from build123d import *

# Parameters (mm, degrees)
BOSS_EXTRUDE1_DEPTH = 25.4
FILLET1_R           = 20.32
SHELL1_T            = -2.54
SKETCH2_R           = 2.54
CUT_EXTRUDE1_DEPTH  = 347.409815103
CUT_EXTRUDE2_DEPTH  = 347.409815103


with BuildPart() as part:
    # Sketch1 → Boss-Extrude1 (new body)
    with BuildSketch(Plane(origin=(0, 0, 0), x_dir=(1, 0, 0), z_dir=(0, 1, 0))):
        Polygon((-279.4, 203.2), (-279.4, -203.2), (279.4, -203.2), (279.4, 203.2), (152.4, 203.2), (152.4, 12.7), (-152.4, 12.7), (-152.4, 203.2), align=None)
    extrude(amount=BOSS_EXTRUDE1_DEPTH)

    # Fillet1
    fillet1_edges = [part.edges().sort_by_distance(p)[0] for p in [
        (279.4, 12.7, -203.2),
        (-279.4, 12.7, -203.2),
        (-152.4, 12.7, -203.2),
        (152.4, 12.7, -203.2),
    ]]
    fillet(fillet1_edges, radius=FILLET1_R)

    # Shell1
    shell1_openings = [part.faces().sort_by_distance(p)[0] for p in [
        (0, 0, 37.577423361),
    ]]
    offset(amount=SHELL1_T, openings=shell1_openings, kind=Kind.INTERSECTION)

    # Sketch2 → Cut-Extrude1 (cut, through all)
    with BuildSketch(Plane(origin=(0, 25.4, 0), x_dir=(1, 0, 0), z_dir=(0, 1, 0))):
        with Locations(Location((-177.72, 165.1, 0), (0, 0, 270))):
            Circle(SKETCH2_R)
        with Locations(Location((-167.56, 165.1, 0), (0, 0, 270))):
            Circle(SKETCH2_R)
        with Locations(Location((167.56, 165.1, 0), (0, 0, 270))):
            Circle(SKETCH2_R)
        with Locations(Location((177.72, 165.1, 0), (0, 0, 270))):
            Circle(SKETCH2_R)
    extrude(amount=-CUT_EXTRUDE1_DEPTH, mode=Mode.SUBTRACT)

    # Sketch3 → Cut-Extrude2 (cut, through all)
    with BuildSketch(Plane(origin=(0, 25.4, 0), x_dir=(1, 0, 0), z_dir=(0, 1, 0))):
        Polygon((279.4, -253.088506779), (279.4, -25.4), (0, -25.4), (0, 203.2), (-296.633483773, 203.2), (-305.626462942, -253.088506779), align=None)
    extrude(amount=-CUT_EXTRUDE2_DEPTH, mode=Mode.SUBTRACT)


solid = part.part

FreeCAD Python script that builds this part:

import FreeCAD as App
import Part
import Sketcher
Q = App.Units.Quantity


def edges_at(feature, points):
    """Names of the edges that pass closest to the given points."""
    edges = feature.Shape.Edges
    near = lambda p: min(range(len(edges)), key=lambda i: edges[i].distToShape(Part.Vertex(*p))[0])
    return sorted({f"Edge{near(p) + 1}" for p in points})


def faces_at(feature, points):
    """Names of the faces that lie closest to the given points."""
    faces = feature.Shape.Faces
    near = lambda p: min(range(len(faces)), key=lambda i: faces[i].distToShape(Part.Vertex(*p))[0])
    return sorted({f"Face{near(p) + 1}" for p in points})


def add_polygon(sketch, points):
    """Adds a closed chain of lines whose ends are joined by coincident constraints."""
    first, n = sketch.GeometryCount, len(points)
    for a, b in zip(points, points[1:] + points[:1]):
        sketch.addGeometry(Part.LineSegment(App.Vector(*a, 0), App.Vector(*b, 0)), False)
    for i in range(n):
        sketch.addConstraint(Sketcher.Constraint("Coincident", first + i, 2, first + (i + 1) % n, 1))

doc = App.newDocument("Part")
body = doc.addObject("PartDesign::Body", "Body")

sketch1 = doc.addObject("Sketcher::SketchObject", "Sketch")
body.addObject(sketch1)
sketch1.AttachmentSupport = (doc.XZ_Plane, [""])
sketch1.MapMode = "FlatFace"
add_polygon(sketch1, [(-279, -203), (-279, 203), (279, 203), (279, -203), (152, -203), (152, -13), (-152, -13), (-152, -203)])
sketch1.addConstraint(Sketcher.Constraint("Vertical", 0))
sketch1.addConstraint(Sketcher.Constraint("Horizontal", 1))
sketch1.addConstraint(Sketcher.Constraint("Vertical", 2))
sketch1.addConstraint(Sketcher.Constraint("Horizontal", 3))
sketch1.addConstraint(Sketcher.Constraint("Vertical", 4))
sketch1.addConstraint(Sketcher.Constraint("Horizontal", 5))
sketch1.addConstraint(Sketcher.Constraint("Vertical", 6))
sketch1.addConstraint(Sketcher.Constraint("Horizontal", 7))
sketch1.addConstraint(Sketcher.Constraint("Symmetric", 0, 2, 2, 2, -1, 1))
sketch1.addConstraint(Sketcher.Constraint("Symmetric", 3, 2, 6, 2, -2))
sketch1.addConstraint(Sketcher.Constraint("DistanceX", 1, 1, 1, 2, Q("22 in")))
sketch1.addConstraint(Sketcher.Constraint("DistanceX", 3, 2, 3, 1, Q("5 in")))
sketch1.addConstraint(Sketcher.Constraint("DistanceY", 0, 1, 0, 2, Q("16 in")))
sketch1.addConstraint(Sketcher.Constraint("DistanceY", 4, 1, 4, 2, Q("7.5 in")))
pad1 = doc.addObject("PartDesign::Pad", "Pad")
body.addObject(pad1)
pad1.Profile = sketch1
pad1.Length = Q("1 in")
pad1.Reversed = True
doc.recompute()

fillet = doc.addObject("PartDesign::Fillet", "Fillet")
body.addObject(fillet)
fillet.Base = (pad1, edges_at(pad1, [
    (279.4, 12.7, -203.2),
    (-279.4, 12.7, -203.2),
    (-152.4, 12.7, -203.2),
    (152.4, 12.7, -203.2),
]))
fillet.Radius = Q("0.8 in")
doc.recompute()

thickness = doc.addObject("PartDesign::Thickness", "Thickness")
body.addObject(thickness)
thickness.Base = (fillet, faces_at(fillet, [(0, 0, 0)]))
thickness.Value = Q("0.1 in")
thickness.Reversed = True
thickness.Join = "Intersection"

sketch2 = doc.addObject("Sketcher::SketchObject", "Sketch001")
body.addObject(sketch2)
sketch2.AttachmentSupport = (doc.XZ_Plane, [""])
sketch2.MapMode = "FlatFace"
sketch2.AttachmentOffset = App.Placement(App.Vector(0, 0, -1 * 25.4), App.Rotation())
sketch2.addGeometry(Part.Circle(App.Vector(-177.7, -165.1, 0), App.Vector(0, 0, 1), 2.5), False)
sketch2.addGeometry(Part.Circle(App.Vector(-167.6, -165.1, 0), App.Vector(0, 0, 1), 2.5), False)
sketch2.addGeometry(Part.Circle(App.Vector(167.6, -165.1, 0), App.Vector(0, 0, 1), 2.5), False)
sketch2.addGeometry(Part.Circle(App.Vector(177.7, -165.1, 0), App.Vector(0, 0, 1), 2.5), False)
sketch2.addConstraint(Sketcher.Constraint("Equal", 0, 1))
sketch2.addConstraint(Sketcher.Constraint("Equal", 1, 2))
sketch2.addConstraint(Sketcher.Constraint("Equal", 2, 3))
sketch2.addConstraint(Sketcher.Constraint("Symmetric", 1, 3, 2, 3, -2))
sketch2.addConstraint(Sketcher.Constraint("Symmetric", 0, 3, 3, 3, -2))
sketch2.addConstraint(Sketcher.Constraint("Horizontal", 0, 3, 1, 3))
sketch2.addConstraint(Sketcher.Constraint("Diameter", 0, Q("0.2 in")))
sketch2.addConstraint(Sketcher.Constraint("DistanceY", 0, 3, -1, 1, Q("6.5 in")))
sketch2.addConstraint(Sketcher.Constraint("DistanceX", 0, 3, 1, 3, Q("0.4 in")))
sketch2.addConstraint(Sketcher.Constraint("DistanceX", 0, 3, -1, 1, 177.72))
pocket1 = doc.addObject("PartDesign::Pocket", "Pocket")
body.addObject(pocket1)
pocket1.Profile = sketch2
pocket1.Type = "ThroughAll"
pocket1.Reversed = True

sketch3 = doc.addObject("Sketcher::SketchObject", "Sketch002")
body.addObject(sketch3)
sketch3.AttachmentSupport = (doc.XZ_Plane, [""])
sketch3.MapMode = "FlatFace"
sketch3.AttachmentOffset = App.Placement(App.Vector(0, 0, -1 * 25.4), App.Rotation())
add_polygon(sketch3, [(279, 253), (279, 25), (0, 25), (0, -203), (-297, -203), (-306, 253)])
sketch3.addConstraint(Sketcher.Constraint("Vertical", 0))
sketch3.addConstraint(Sketcher.Constraint("Horizontal", 1))
sketch3.addConstraint(Sketcher.Constraint("Vertical", 2))
sketch3.addConstraint(Sketcher.Constraint("Horizontal", 3))
sketch3.addConstraint(Sketcher.Constraint("Horizontal", 5))
sketch3.addConstraint(Sketcher.Constraint("PointOnObject", 1, 2, -2))
sketch3.addConstraint(Sketcher.Constraint("DistanceX", 1, 2, 1, 1, Q("11 in")))
sketch3.addConstraint(Sketcher.Constraint("DistanceY", 2, 2, 2, 1, Q("9 in")))
sketch3.addConstraint(Sketcher.Constraint("DistanceY", -1, 1, 0, 2, Q("1 in")))
sketch3.addConstraint(Sketcher.Constraint("Distance", 4, 456.377119))
sketch3.addConstraint(Sketcher.Constraint("DistanceX", 3, 2, 3, 1, 296.633484))
sketch3.addConstraint(Sketcher.Constraint("DistanceX", 5, 1, 5, 2, 585.026463))
pocket2 = doc.addObject("PartDesign::Pocket", "Pocket001")
body.addObject(pocket2)
pocket2.Profile = sketch3
pocket2.Type = "ThroughAll"
pocket2.Reversed = True

doc.recompute()
